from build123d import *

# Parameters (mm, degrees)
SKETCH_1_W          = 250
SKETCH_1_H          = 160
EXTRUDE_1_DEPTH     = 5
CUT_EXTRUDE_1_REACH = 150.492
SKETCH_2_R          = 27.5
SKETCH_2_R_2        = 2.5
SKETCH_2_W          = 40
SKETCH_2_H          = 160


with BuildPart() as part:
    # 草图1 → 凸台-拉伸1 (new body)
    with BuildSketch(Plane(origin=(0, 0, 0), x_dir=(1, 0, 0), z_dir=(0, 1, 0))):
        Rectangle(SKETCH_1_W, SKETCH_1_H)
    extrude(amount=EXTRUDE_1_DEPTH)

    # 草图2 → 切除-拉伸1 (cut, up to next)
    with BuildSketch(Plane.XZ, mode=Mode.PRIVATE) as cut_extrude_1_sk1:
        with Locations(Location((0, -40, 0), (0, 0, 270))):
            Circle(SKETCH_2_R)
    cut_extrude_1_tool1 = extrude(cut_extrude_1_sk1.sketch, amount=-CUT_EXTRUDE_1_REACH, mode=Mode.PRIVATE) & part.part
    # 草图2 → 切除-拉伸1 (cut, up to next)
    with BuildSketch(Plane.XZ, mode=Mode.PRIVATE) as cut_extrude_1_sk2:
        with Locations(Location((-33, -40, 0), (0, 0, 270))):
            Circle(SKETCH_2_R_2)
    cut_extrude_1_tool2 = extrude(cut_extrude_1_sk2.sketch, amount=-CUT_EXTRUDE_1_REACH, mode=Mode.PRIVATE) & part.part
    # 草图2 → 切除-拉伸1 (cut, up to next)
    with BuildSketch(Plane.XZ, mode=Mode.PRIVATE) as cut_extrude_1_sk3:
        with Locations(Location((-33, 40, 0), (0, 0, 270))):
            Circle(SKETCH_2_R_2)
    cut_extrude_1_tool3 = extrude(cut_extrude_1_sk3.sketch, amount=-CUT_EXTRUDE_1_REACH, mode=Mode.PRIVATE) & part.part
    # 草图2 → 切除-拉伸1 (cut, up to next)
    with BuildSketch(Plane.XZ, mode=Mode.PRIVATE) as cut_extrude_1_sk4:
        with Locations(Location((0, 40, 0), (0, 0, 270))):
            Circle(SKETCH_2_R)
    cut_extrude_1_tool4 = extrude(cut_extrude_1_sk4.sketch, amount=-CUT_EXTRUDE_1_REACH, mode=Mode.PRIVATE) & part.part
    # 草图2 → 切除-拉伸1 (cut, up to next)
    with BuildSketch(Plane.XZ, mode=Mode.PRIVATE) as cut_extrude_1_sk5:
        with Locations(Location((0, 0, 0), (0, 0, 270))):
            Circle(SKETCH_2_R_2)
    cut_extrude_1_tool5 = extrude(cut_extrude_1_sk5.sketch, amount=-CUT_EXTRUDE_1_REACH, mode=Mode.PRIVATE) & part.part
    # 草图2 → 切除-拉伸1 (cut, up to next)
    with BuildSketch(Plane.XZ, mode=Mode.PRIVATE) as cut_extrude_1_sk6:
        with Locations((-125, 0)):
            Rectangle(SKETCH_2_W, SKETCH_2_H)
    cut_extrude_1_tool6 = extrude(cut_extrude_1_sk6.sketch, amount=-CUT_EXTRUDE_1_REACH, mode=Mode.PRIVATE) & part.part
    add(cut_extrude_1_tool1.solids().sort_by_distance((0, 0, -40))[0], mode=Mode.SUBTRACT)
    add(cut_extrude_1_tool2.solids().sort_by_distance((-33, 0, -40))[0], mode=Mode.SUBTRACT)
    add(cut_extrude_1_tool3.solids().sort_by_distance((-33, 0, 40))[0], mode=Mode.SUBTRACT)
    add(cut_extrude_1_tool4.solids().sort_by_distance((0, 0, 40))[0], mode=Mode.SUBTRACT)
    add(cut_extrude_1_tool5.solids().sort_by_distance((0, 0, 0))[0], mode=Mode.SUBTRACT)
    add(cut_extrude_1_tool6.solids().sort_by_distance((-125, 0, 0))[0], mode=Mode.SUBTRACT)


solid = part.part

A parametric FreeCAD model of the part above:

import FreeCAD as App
import Part
import Sketcher
from FreeCAD import Vector


def add_polygon(sketch, points):
    """Adds a closed chain of lines whose ends are joined by coincident constraints."""
    first, n = sketch.GeometryCount, len(points)
    for a, b in zip(points, points[1:] + points[:1]):
        sketch.addGeometry(Part.LineSegment(App.Vector(*a, 0), App.Vector(*b, 0)), False)
    for i in range(n):
        sketch.addConstraint(Sketcher.Constraint("Coincident", first + i, 2, first + (i + 1) % n, 1))

doc = App.newDocument("Part")
body = doc.addObject("PartDesign::Body", "Body")

sketch1 = body.newObject("Sketcher::SketchObject", "Sketch")
sketch1.AttachmentSupport = (doc.getObject("XZ_Plane"), [""])
sketch1.MapMode = "FlatFace"
add_polygon(sketch1, [(-125, -80), (-125, 80), (125, 80), (125, -80)])
sketch1.addConstraint(Sketcher.Constraint("Vertical", 0))
sketch1.addConstraint(Sketcher.Constraint("Horizontal", 1))
sketch1.addConstraint(Sketcher.Constraint("Vertical", 2))
sketch1.addConstraint(Sketcher.Constraint("Horizontal", 3))
sketch1.addConstraint(Sketcher.Constraint("Symmetric", 0, 2, 2, 2, -1, 1))
sketch1.addConstraint(Sketcher.Constraint("DistanceX", 1, 1, 1, 2, 250.0))
sketch1.addConstraint(Sketcher.Constraint("DistanceY", 0, 1, 0, 2, 160.0))
pad1 = body.newObject("PartDesign::Pad", "Pad")
pad1.Profile = sketch1
pad1.Length = 5
pad1.Reversed = True

sketch2 = body.newObject("Sketcher::SketchObject", "Sketch001")
sketch2.AttachmentSupport = (doc.getObject("XZ_Plane"), [""])
sketch2.MapMode = "FlatFace"
sketch2.addGeometry(Part.Circle(Vector(0, -40, 0), Vector(0, 0, 1), 28), False)
sketch2.addConstraint(Sketcher.Constraint("PointOnObject", 0, 3, -2))
sketch2.addConstraint(Sketcher.Constraint("Diameter", 0, 55.0))
sketch2.addConstraint(Sketcher.Constraint("DistanceY", 0, 3, -1, 1, 40.0))
pocket1 = body.newObject("PartDesign::Pocket", "Pocket")
pocket1.Profile = sketch2
pocket1.Type = "UpToFirst"

sketch3 = body.newObject("Sketcher::SketchObject", "Sketch002")
sketch3.AttachmentSupport = (doc.getObject("XZ_Plane"), [""])
sketch3.MapMode = "FlatFace"
sketch3.addGeometry(Part.Circle(Vector(-33, -40, 0), Vector(0, 0, 1), 2.5), False)
sketch3.addConstraint(Sketcher.Constraint("Diameter", 0, 5.0))
sketch3.addConstraint(Sketcher.Constraint("DistanceX", 0, 3, -1, 1, 33.0))
sketch3.addConstraint(Sketcher.Constraint("DistanceY", 0, 3, -1, 1, 40.0))
pocket2 = body.newObject("PartDesign::Pocket", "Pocket001")
pocket2.Profile = sketch3
pocket2.Type = "UpToFirst"

sketch4 = body.newObject("Sketcher::SketchObject", "Sketch003")
sketch4.AttachmentSupport = (doc.getObject("XZ_Plane"), [""])
sketch4.MapMode = "FlatFace"
sketch4.addGeometry(Part.Circle(Vector(-33, 40, 0), Vector(0, 0, 1), 2.5), False)
sketch4.addConstraint(Sketcher.Constraint("Diameter", 0, 5.0))
sketch4.addConstraint(Sketcher.Constraint("DistanceX", 0, 3, -1, 1, 33.0))
sketch4.addConstraint(Sketcher.Constraint("DistanceY", -1, 1, 0, 3, 40.0))
pocket3 = body.newObject("PartDesign::Pocket", "Pocket002")
pocket3.Profile = sketch4
pocket3.Type = "UpToFirst"

sketch5 = body.newObject("Sketcher::SketchObject", "Sketch004")
sketch5.AttachmentSupport = (doc.getObject("XZ_Plane"), [""])
sketch5.MapMode = "FlatFace"
sketch5.addGeometry(Part.Circle(Vector(0, 40, 0), Vector(0, 0, 1), 28), False)
sketch5.addConstraint(Sketcher.Constraint("PointOnObject", 0, 3, -2))
sketch5.addConstraint(Sketcher.Constraint("Diameter", 0, 55.0))
sketch5.addConstraint(Sketcher.Constraint("DistanceY", -1, 1, 0, 3, 40.0))
pocket4 = body.newObject("PartDesign::Pocket", "Pocket003")
pocket4.Profile = sketch5
pocket4.Type = "UpToFirst"

sketch6 = body.newObject("Sketcher::SketchObject", "Sketch005")
sketch6.AttachmentSupport = (doc.getObject("XZ_Plane"), [""])
sketch6.MapMode = "FlatFace"
sketch6.addGeometry(Part.Circle(Vector(0, 0, 0), Vector(0, 0, 1), 2.5), False)
sketch6.addConstraint(Sketcher.Constraint("Coincident", 0, 3, -1, 1))
sketch6.addConstraint(Sketcher.Constraint("Diameter", 0, 5.0))
pocket5 = body.newObject("PartDesign::Pocket", "Pocket004")
pocket5.Profile = sketch6
pocket5.Type = "UpToFirst"

sketch7 = body.newObject("Sketcher::SketchObject", "Sketch006")
sketch7.AttachmentSupport = (doc.getObject("XZ_Plane"), [""])
sketch7.MapMode = "FlatFace"
add_polygon(sketch7, [(-145, 80), (-145, -80), (-105, -80), (-105, 80)])
sketch7.addConstraint(Sketcher.Constraint("Vertical", 0))
sketch7.addConstraint(Sketcher.Constraint("Horizontal", 1))
sketch7.addConstraint(Sketcher.Constraint("Vertical", 2))
sketch7.addConstraint(Sketcher.Constraint("Horizontal", 3))
sketch7.addConstraint(Sketcher.Constraint("DistanceX", 1, 1, 1, 2, 40.0))
sketch7.addConstraint(Sketcher.Constraint("DistanceY", 0, 2, 0, 1, 160.0))
sketch7.addConstraint(Sketcher.Constraint("DistanceX", 0, 2, -1, 1, 145.0))
sketch7.addConstraint(Sketcher.Constraint("DistanceY", 0, 2, -1, 1, 80.0))
pocket6 = body.newObject("PartDesign::Pocket", "Pocket005")
pocket6.Profile = sketch7
pocket6.Type = "UpToFirst"

doc.recompute()
